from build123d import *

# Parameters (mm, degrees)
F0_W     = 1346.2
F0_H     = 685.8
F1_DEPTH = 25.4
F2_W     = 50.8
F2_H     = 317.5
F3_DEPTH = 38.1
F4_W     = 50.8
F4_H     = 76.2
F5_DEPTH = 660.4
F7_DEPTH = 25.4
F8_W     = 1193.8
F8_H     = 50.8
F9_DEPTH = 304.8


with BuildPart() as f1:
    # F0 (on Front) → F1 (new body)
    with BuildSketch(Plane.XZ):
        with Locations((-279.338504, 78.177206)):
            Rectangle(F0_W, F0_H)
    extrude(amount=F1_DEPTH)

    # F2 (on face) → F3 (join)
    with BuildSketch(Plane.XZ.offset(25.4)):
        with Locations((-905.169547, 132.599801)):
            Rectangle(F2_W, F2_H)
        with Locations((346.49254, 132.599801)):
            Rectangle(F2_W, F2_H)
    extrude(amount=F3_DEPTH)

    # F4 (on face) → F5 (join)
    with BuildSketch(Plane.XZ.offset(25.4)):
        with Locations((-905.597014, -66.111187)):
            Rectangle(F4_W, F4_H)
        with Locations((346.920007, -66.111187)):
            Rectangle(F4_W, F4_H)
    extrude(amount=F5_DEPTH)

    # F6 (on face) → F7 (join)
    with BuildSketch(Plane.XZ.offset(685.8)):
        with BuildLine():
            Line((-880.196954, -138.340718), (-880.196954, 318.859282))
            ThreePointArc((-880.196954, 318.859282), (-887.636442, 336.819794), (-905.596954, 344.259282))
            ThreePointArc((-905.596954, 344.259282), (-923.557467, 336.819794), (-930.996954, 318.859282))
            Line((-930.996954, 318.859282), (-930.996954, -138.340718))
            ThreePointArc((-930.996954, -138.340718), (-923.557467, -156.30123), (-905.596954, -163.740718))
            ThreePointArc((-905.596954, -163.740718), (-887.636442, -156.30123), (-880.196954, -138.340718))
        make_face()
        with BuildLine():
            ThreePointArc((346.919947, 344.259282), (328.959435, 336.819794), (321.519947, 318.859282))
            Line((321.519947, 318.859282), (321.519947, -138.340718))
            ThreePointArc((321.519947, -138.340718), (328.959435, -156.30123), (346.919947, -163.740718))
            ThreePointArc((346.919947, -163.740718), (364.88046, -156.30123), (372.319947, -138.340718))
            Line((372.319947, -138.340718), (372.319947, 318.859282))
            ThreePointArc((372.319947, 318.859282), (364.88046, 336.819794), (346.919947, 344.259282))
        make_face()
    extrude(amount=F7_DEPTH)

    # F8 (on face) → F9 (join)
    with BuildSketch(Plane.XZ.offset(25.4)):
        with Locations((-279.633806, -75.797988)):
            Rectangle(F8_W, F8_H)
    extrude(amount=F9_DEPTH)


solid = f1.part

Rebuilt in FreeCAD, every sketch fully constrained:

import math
import FreeCAD as App
import Part
import Sketcher
from FreeCAD import Vector
Q = App.Units.Quantity


def add_polygon(sketch, points):
    """Adds a closed chain of lines whose ends are joined by coincident constraints."""
    first, n = sketch.GeometryCount, len(points)
    for a, b in zip(points, points[1:] + points[:1]):
        sketch.addGeometry(Part.LineSegment(App.Vector(*a, 0), App.Vector(*b, 0)), False)
    for i in range(n):
        sketch.addConstraint(Sketcher.Constraint("Coincident", first + i, 2, first + (i + 1) % n, 1))

doc = App.newDocument("Part")
body = doc.addObject("PartDesign::Body", "Body")

sketch1 = body.newObject("Sketcher::SketchObject", "Sketch")
sketch1.AttachmentSupport = (doc.getObject("XZ_Plane"), [""])
sketch1.MapMode = "FlatFace"
add_polygon(sketch1, [(-952, 421), (-952, -265), (394, -265), (394, 421)])
sketch1.addConstraint([
    Sketcher.Constraint("Vertical", 0),
    Sketcher.Constraint("Horizontal", 1),
    Sketcher.Constraint("Vertical", 2),
    Sketcher.Constraint("Horizontal", 3),
    Sketcher.Constraint("DistanceX", 1, 1, 1, 2, Q("53 in")),
    Sketcher.Constraint("DistanceY", 0, 2, 0, 1, Q("27 in")),
    Sketcher.Constraint("DistanceX", 0, 2, -1, 1, 952.438504),
    Sketcher.Constraint("DistanceY", 0, 2, -1, 1, 264.722794),
])
pad1 = body.newObject("PartDesign::Pad", "Pad")
pad1.Profile = sketch1
pad1.Length = Q("1 in")

sketch2 = body.newObject("Sketcher::SketchObject", "Sketch001")
sketch2.AttachmentSupport = (doc.getObject("XZ_Plane"), [""])
sketch2.MapMode = "FlatFace"
sketch2.AttachmentOffset = App.Placement(Vector(0, 0, 1 * 25.4), App.Rotation())
add_polygon(sketch2, [(-931, 291), (-931, -26), (-880, -26), (-880, 291)])
add_polygon(sketch2, [(321, 291), (321, -26), (372, -26), (372, 291)])
sketch2.addConstraint([
    Sketcher.Constraint("Vertical", 0),
    Sketcher.Constraint("Horizontal", 1),
    Sketcher.Constraint("Vertical", 2),
    Sketcher.Constraint("Horizontal", 3),
    Sketcher.Constraint("Vertical", 4),
    Sketcher.Constraint("Horizontal", 5),
    Sketcher.Constraint("Vertical", 6),
    Sketcher.Constraint("Horizontal", 7),
    Sketcher.Constraint("Horizontal", 1, 2, 4, 2),
    Sketcher.Constraint("Horizontal", 3, 2, 6, 2),
    Sketcher.Constraint("Equal", 3, 5),
    Sketcher.Constraint("DistanceX", 1, 1, 1, 2, Q("2 in")),
    Sketcher.Constraint("DistanceY", 0, 2, 0, 1, Q("12.5 in")),
    Sketcher.Constraint("DistanceY", 0, 2, -1, 1, 26.150199),
    Sketcher.Constraint("DistanceX", -1, 1, 4, 2, 321.09254),
    Sketcher.Constraint("DistanceX", 0, 2, -1, 1, 930.569547),
])
pad2 = body.newObject("PartDesign::Pad", "Pad001")
pad2.Profile = sketch2
pad2.Length = Q("1.5 in")

sketch3 = body.newObject("Sketcher::SketchObject", "Sketch002")
sketch3.AttachmentSupport = (doc.getObject("XZ_Plane"), [""])
sketch3.MapMode = "FlatFace"
sketch3.AttachmentOffset = App.Placement(Vector(0, 0, 1 * 25.4), App.Rotation())
add_polygon(sketch3, [(-931, -28), (-931, -104), (-880, -104), (-880, -28)])
add_polygon(sketch3, [(322, -28), (322, -104), (372, -104), (372, -28)])
sketch3.addConstraint([
    Sketcher.Constraint("Vertical", 0),
    Sketcher.Constraint("Horizontal", 1),
    Sketcher.Constraint("Vertical", 2),
    Sketcher.Constraint("Horizontal", 3),
    Sketcher.Constraint("Vertical", 4),
    Sketcher.Constraint("Horizontal", 5),
    Sketcher.Constraint("Vertical", 6),
    Sketcher.Constraint("Horizontal", 7),
    Sketcher.Constraint("Horizontal", 1, 2, 4, 2),
    Sketcher.Constraint("Horizontal", 3, 2, 6, 2),
    Sketcher.Constraint("Equal", 3, 5),
    Sketcher.Constraint("DistanceX", 1, 1, 1, 2, Q("2 in")),
    Sketcher.Constraint("DistanceY", 0, 2, 0, 1, Q("3 in")),
    Sketcher.Constraint("DistanceX", 1, 2, 4, 2, 1201.717021),
    Sketcher.Constraint("DistanceX", 0, 2, -1, 1, 930.997014),
    Sketcher.Constraint("DistanceY", 0, 2, -1, 1, 104.211187),
])
pad3 = body.newObject("PartDesign::Pad", "Pad002")
pad3.Profile = sketch3
pad3.Length = Q("26 in")

sketch4 = body.newObject("Sketcher::SketchObject", "Sketch003")
sketch4.AttachmentSupport = (doc.getObject("XZ_Plane"), [""])
sketch4.MapMode = "FlatFace"
sketch4.AttachmentOffset = App.Placement(Vector(0, 0, 27 * 25.4), App.Rotation())
sketch4.addGeometry([
    Part.LineSegment(Vector(-880, -138, 0), Vector(-880, 319, 0)),
    Part.ArcOfCircle(Part.Circle(Vector(-906, 319, 0), Vector(0, 0, 1), 25), math.radians(0), math.radians(90)),
    Part.ArcOfCircle(Part.Circle(Vector(-906, 319, 0), Vector(0, 0, 1), 25), math.radians(90), math.radians(180)),
    Part.LineSegment(Vector(-931, 319, 0), Vector(-931, -138, 0)),
    Part.ArcOfCircle(Part.Circle(Vector(-906, -138, 0), Vector(0, 0, 1), 25), math.radians(180), math.radians(270)),
    Part.ArcOfCircle(Part.Circle(Vector(-906, -138, 0), Vector(0, 0, 1), 25), math.radians(-90), math.radians(0)),
    Part.ArcOfCircle(Part.Circle(Vector(347, 319, 0), Vector(0, 0, 1), 25), math.radians(90), math.radians(180)),
    Part.LineSegment(Vector(322, 319, 0), Vector(322, -138, 0)),
    Part.ArcOfCircle(Part.Circle(Vector(347, -138, 0), Vector(0, 0, 1), 25), math.radians(-180), math.radians(-90)),
    Part.ArcOfCircle(Part.Circle(Vector(347, -138, 0), Vector(0, 0, 1), 25), math.radians(-90), math.radians(0)),
    Part.LineSegment(Vector(372, -138, 0), Vector(372, 319, 0)),
    Part.ArcOfCircle(Part.Circle(Vector(347, 319, 0), Vector(0, 0, 1), 25), math.radians(0), math.radians(90)),
], False)
sketch4.addConstraint([
    Sketcher.Constraint("Tangent", 0, 2, 1, 1),
    Sketcher.Constraint("Tangent", 1, 2, 2, 1),
    Sketcher.Constraint("Tangent", 2, 2, 3, 1),
    Sketcher.Constraint("Tangent", 3, 2, 4, 1),
    Sketcher.Constraint("Tangent", 4, 2, 5, 1),
    Sketcher.Constraint("Tangent", 5, 2, 0, 1),
    Sketcher.Constraint("Tangent", 6, 2, 7, 1),
    Sketcher.Constraint("Tangent", 7, 2, 8, 1),
    Sketcher.Constraint("Tangent", 8, 2, 9, 1),
    Sketcher.Constraint("Tangent", 9, 2, 10, 1),
    Sketcher.Constraint("Tangent", 10, 2, 11, 1),
    Sketcher.Constraint("Tangent", 11, 2, 6, 1),
    Sketcher.Constraint("Vertical", 0),
    Sketcher.Constraint("Vertical", 3),
    Sketcher.Constraint("Vertical", 7),
    Sketcher.Constraint("Vertical", 10),
    Sketcher.Constraint("Equal", 1, 2),
    Sketcher.Constraint("Equal", 2, 4),
    Sketcher.Constraint("Equal", 5, 6),
    Sketcher.Constraint("Equal", 6, 8),
    Sketcher.Constraint("Equal", 8, 9),
    Sketcher.Constraint("Horizontal", 2, 3, 6, 3),
    Sketcher.Constraint("Horizontal", 5, 3, 8, 3),
    Sketcher.Constraint("Vertical", 5, 3, 1, 2),
    Sketcher.Constraint("Vertical", 1, 2, 4, 2),
    Sketcher.Constraint("Vertical", 11, 3, 8, 2),
    Sketcher.Constraint("Vertical", 8, 2, 11, 2),
    Sketcher.Constraint("Radius", 1, Q("1 in")),
    Sketcher.Constraint("DistanceY", 0, 1, 0, 2, Q("18 in")),
    Sketcher.Constraint("DistanceX", 0, 2, 6, 3, 1227.116902),
    Sketcher.Constraint("DistanceY", -1, 1, 1, 3, 318.859281),
    Sketcher.Constraint("DistanceX", 1, 3, -1, 1, 905.596955),
])
pad4 = body.newObject("PartDesign::Pad", "Pad003")
pad4.Profile = sketch4
pad4.Length = Q("1 in")

sketch5 = body.newObject("Sketcher::SketchObject", "Sketch004")
sketch5.AttachmentSupport = (doc.getObject("XZ_Plane"), [""])
sketch5.MapMode = "FlatFace"
sketch5.AttachmentOffset = App.Placement(Vector(0, 0, 1 * 25.4), App.Rotation())
add_polygon(sketch5, [(-877, -50), (-877, -101), (317, -101), (317, -50)])
sketch5.addConstraint([
    Sketcher.Constraint("Vertical", 0),
    Sketcher.Constraint("Horizontal", 1),
    Sketcher.Constraint("Vertical", 2),
    Sketcher.Constraint("Horizontal", 3),
    Sketcher.Constraint("DistanceX", 1, 1, 1, 2, Q("47 in")),
    Sketcher.Constraint("DistanceY", 0, 2, 0, 1, Q("2 in")),
    Sketcher.Constraint("DistanceX", 0, 2, -1, 1, 876.533806),
    Sketcher.Constraint("DistanceY", 0, 2, -1, 1, 101.197988),
])
pad5 = body.newObject("PartDesign::Pad", "Pad004")
pad5.Profile = sketch5
pad5.Length = Q("12 in")

doc.recompute()
